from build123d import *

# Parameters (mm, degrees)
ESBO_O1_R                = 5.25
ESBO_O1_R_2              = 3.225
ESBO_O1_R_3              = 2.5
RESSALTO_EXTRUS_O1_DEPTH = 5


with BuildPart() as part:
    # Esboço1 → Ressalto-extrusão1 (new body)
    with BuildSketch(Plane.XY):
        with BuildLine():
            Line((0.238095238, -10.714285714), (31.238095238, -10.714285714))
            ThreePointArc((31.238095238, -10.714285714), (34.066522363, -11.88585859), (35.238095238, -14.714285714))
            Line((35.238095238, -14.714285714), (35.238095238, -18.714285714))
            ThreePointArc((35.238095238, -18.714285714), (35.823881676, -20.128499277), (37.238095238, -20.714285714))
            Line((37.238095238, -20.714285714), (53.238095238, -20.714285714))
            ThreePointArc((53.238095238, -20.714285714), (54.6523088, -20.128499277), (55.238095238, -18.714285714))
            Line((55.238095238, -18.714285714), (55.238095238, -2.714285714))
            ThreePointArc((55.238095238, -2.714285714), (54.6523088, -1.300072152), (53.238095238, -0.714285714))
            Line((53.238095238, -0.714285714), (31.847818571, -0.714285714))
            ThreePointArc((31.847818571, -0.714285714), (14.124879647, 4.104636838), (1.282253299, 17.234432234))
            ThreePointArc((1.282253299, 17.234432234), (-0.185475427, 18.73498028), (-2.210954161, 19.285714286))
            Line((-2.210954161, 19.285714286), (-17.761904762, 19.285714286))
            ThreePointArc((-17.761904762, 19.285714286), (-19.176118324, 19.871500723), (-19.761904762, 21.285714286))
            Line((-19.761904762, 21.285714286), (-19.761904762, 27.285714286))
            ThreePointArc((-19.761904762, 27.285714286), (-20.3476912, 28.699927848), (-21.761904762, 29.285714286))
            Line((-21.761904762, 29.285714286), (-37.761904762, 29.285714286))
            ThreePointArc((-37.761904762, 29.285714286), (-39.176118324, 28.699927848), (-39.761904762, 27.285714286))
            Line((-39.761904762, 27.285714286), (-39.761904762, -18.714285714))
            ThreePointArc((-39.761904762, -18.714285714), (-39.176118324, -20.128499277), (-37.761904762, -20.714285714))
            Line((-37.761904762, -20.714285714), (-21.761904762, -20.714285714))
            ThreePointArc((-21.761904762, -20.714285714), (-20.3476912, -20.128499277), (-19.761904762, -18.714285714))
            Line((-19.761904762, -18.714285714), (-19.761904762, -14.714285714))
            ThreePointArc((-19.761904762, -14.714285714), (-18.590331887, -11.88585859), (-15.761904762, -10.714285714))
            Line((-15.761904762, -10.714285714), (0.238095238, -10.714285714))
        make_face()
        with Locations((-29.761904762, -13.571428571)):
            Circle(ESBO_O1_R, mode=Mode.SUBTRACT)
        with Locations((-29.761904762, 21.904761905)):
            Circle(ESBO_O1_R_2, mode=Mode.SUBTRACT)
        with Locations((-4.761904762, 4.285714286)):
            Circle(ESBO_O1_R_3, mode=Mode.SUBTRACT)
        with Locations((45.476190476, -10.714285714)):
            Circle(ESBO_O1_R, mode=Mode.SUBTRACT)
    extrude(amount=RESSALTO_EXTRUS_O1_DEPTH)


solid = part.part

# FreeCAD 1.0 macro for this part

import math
import FreeCAD as App
import Part
import Sketcher

V = App.Vector

doc = App.newDocument("Part")
body = doc.addObject("PartDesign::Body", "Body")

# Sketch on XY plane
sketch1 = doc.addObject("Sketcher::SketchObject", "Sketch")
body.addObject(sketch1)
sketch1.AttachmentSupport = (doc.XY_Plane, [""])
sketch1.MapMode = "FlatFace"
sketch1.addGeometry([
    Part.ArcOfCircle(Part.Circle(V(31.238095, -14.714286, 0), V(0, 0, 1), 4), math.radians(0), math.radians(90)),  # 0
    Part.LineSegment(V(35.238095, -14.714286, 0), V(35.238095, -18.714286, 0)),  # 1
    Part.ArcOfCircle(Part.Circle(V(37.238095, -18.714286, 0), V(0, 0, 1), 2), math.radians(180), math.radians(270)),  # 2
    Part.LineSegment(V(37.238095, -20.714286, 0), V(53.238095, -20.714286, 0)),  # 3
    Part.ArcOfCircle(Part.Circle(V(53.238095, -18.714286, 0), V(0, 0, 1), 2), math.radians(-90), math.radians(0)),  # 4
    Part.LineSegment(V(55.238095, -18.714286, 0), V(55.238095, -2.714286, 0)),  # 5
    Part.ArcOfCircle(Part.Circle(V(53.238095, -2.714286, 0), V(0, 0, 1), 2), math.radians(0), math.radians(90)),  # 6
    Part.LineSegment(V(53.238095, -0.714286, 0), V(31.847819, -0.714286, 0)),  # 7
    Part.ArcOfCircle(Part.Circle(V(31.847819, 34.285714, 0), V(0, 0, 1), 35), math.radians(-150.844635), math.radians(-90)),  # 8
    Part.ArcOfCircle(Part.Circle(V(-2.210954, 15.285714, 0), V(0, 0, 1), 4), math.radians(29.155365), math.radians(90)),  # 9
    Part.LineSegment(V(-2.210954, 19.285714, 0), V(-17.761905, 19.285714, 0)),  # 10
    Part.ArcOfCircle(Part.Circle(V(-17.761905, 21.285714, 0), V(0, 0, 1), 2), math.radians(180), math.radians(270)),  # 11
    Part.LineSegment(V(-19.761905, 21.285714, 0), V(-19.761905, 27.285714, 0)),  # 12
    Part.ArcOfCircle(Part.Circle(V(-21.761905, 27.285714, 0), V(0, 0, 1), 2), math.radians(0), math.radians(90)),  # 13
    Part.LineSegment(V(-21.761905, 29.285714, 0), V(-37.761905, 29.285714, 0)),  # 14
    Part.ArcOfCircle(Part.Circle(V(-37.761905, 27.285714, 0), V(0, 0, 1), 2), math.radians(90), math.radians(180)),  # 15
    Part.LineSegment(V(-39.761905, 27.285714, 0), V(-39.761905, -18.714286, 0)),  # 16
    Part.ArcOfCircle(Part.Circle(V(-37.761905, -18.714286, 0), V(0, 0, 1), 2), math.radians(180), math.radians(270)),  # 17
    Part.LineSegment(V(-37.761905, -20.714286, 0), V(-21.761905, -20.714286, 0)),  # 18
    Part.ArcOfCircle(Part.Circle(V(-21.761905, -18.714286, 0), V(0, 0, 1), 2), math.radians(-90), math.radians(0)),  # 19
    Part.LineSegment(V(-19.761905, -18.714286, 0), V(-19.761905, -14.714286, 0)),  # 20
    Part.ArcOfCircle(Part.Circle(V(-15.761905, -14.714286, 0), V(0, 0, 1), 4), math.radians(90), math.radians(180)),  # 21
    Part.LineSegment(V(-15.761905, -10.714286, 0), V(31.238095, -10.714286, 0)),  # 22
    Part.Circle(V(-29.761905, -13.571429, 0), V(0, 0, 1), 5.25),  # 23
    Part.Circle(V(45.47619, -10.714286, 0), V(0, 0, 1), 5.25),  # 24
    Part.Circle(V(-4.761905, 4.285714, 0), V(0, 0, 1), 2.5),  # 25
    Part.Circle(V(-29.761905, 21.904762, 0), V(0, 0, 1), 3.225),  # 26
], False)
sketch1.addConstraint([
    Sketcher.Constraint("Tangent", 0, 1, 1, 1),
    Sketcher.Constraint("Tangent", 1, 2, 2, 1),
    Sketcher.Constraint("Tangent", 2, 2, 3, 1),
    Sketcher.Constraint("Tangent", 3, 2, 4, 1),
    Sketcher.Constraint("Tangent", 4, 2, 5, 1),
    Sketcher.Constraint("Tangent", 5, 2, 6, 1),
    Sketcher.Constraint("Tangent", 6, 2, 7, 1),
    Sketcher.Constraint("Tangent", 7, 2, 8, 2),
    Sketcher.Constraint("Tangent", 8, 1, 9, 1),
    Sketcher.Constraint("Tangent", 9, 2, 10, 1),
    Sketcher.Constraint("Tangent", 10, 2, 11, 2),
    Sketcher.Constraint("Tangent", 11, 1, 12, 1),
    Sketcher.Constraint("Tangent", 12, 2, 13, 1),
    Sketcher.Constraint("Tangent", 13, 2, 14, 1),
    Sketcher.Constraint("Tangent", 14, 2, 15, 1),
    Sketcher.Constraint("Tangent", 15, 2, 16, 1),
    Sketcher.Constraint("Tangent", 16, 2, 17, 1),
    Sketcher.Constraint("Tangent", 17, 2, 18, 1),
    Sketcher.Constraint("Tangent", 18, 2, 19, 1),
    Sketcher.Constraint("Tangent", 19, 2, 20, 1),
    Sketcher.Constraint("Tangent", 20, 2, 21, 2),
    Sketcher.Constraint("Tangent", 21, 1, 22, 1),
    Sketcher.Constraint("Tangent", 22, 2, 0, 2),
    Sketcher.Constraint("Vertical", 1),
    Sketcher.Constraint("Horizontal", 3),
    Sketcher.Constraint("Vertical", 5),
    Sketcher.Constraint("Horizontal", 7),
    Sketcher.Constraint("Horizontal", 10),
    Sketcher.Constraint("Vertical", 12),
    Sketcher.Constraint("Horizontal", 14),
    Sketcher.Constraint("Vertical", 16),
    Sketcher.Constraint("Horizontal", 18),
    Sketcher.Constraint("Vertical", 20),
    Sketcher.Constraint("Horizontal", 22),
    Sketcher.Constraint("Equal", 2, 4),
    Sketcher.Constraint("Equal", 4, 6),
    Sketcher.Constraint("Equal", 0, 9),
    Sketcher.Constraint("Equal", 6, 11),
    Sketcher.Constraint("Equal", 11, 13),
    Sketcher.Constraint("Equal", 13, 15),
    Sketcher.Constraint("Equal", 15, 17),
    Sketcher.Constraint("Equal", 17, 19),
    Sketcher.Constraint("Equal", 9, 21),
    Sketcher.Constraint("Equal", 23, 24),
    Sketcher.Constraint("Horizontal", 4, 3, 17, 3),
    Sketcher.Constraint("Horizontal", 24, 3, 21, 1),
    Sketcher.Constraint("Vertical", 13, 3, 19, 3),
    Sketcher.Constraint("Vertical", 23, 3, 26, 3),
    Sketcher.Constraint("Equal", 3, 14),
    Sketcher.Constraint("Equal", 18, 5),
    Sketcher.Constraint("Diameter", 25, 5.0),
    Sketcher.Constraint("Radius", 0, 4.0),
    Sketcher.Constraint("Radius", 2, 2.0),
    Sketcher.Constraint("Radius", 8, 35.0),
    Sketcher.Constraint("Diameter", 23, 10.5),
    Sketcher.Constraint("Diameter", 26, 6.45),
    Sketcher.Constraint("DistanceX", 3, 1, 3, 2, 16.0),
    Sketcher.Constraint("DistanceX", 22, 1, 22, 2, 47.0),
    Sketcher.Constraint("DistanceY", 1, 2, 1, 1, 4.0),
    Sketcher.Constraint("DistanceY", 12, 1, 12, 2, 6.0),
    Sketcher.Constraint("DistanceY", 16, 2, 16, 1, 46.0),
    Sketcher.Constraint("DistanceX", 17, 3, 23, 3, 8.0),
    Sketcher.Constraint("DistanceY", 25, 3, 9, 3, 11.0),
    Sketcher.Constraint("DistanceX", 11, 3, 25, 3, 13.0),
    Sketcher.Constraint("DistanceX", 10, 2, 10, 1, 15.550951),
    Sketcher.Constraint("DistanceX", -1, 1, 8, 3, 31.847819),
    Sketcher.Constraint("DistanceY", 23, 3, -1, 1, 13.571429),
    Sketcher.Constraint("DistanceX", -1, 1, 24, 3, 45.47619),
    Sketcher.Constraint("DistanceY", -1, 1, 26, 3, 21.904762),
    Sketcher.Constraint("DistanceY", 8, 1, 26, 3, 4.67033),
])
pad1 = doc.addObject("PartDesign::Pad", "Pad")
body.addObject(pad1)
pad1.Profile = sketch1
pad1.Length = 5

doc.recompute()
